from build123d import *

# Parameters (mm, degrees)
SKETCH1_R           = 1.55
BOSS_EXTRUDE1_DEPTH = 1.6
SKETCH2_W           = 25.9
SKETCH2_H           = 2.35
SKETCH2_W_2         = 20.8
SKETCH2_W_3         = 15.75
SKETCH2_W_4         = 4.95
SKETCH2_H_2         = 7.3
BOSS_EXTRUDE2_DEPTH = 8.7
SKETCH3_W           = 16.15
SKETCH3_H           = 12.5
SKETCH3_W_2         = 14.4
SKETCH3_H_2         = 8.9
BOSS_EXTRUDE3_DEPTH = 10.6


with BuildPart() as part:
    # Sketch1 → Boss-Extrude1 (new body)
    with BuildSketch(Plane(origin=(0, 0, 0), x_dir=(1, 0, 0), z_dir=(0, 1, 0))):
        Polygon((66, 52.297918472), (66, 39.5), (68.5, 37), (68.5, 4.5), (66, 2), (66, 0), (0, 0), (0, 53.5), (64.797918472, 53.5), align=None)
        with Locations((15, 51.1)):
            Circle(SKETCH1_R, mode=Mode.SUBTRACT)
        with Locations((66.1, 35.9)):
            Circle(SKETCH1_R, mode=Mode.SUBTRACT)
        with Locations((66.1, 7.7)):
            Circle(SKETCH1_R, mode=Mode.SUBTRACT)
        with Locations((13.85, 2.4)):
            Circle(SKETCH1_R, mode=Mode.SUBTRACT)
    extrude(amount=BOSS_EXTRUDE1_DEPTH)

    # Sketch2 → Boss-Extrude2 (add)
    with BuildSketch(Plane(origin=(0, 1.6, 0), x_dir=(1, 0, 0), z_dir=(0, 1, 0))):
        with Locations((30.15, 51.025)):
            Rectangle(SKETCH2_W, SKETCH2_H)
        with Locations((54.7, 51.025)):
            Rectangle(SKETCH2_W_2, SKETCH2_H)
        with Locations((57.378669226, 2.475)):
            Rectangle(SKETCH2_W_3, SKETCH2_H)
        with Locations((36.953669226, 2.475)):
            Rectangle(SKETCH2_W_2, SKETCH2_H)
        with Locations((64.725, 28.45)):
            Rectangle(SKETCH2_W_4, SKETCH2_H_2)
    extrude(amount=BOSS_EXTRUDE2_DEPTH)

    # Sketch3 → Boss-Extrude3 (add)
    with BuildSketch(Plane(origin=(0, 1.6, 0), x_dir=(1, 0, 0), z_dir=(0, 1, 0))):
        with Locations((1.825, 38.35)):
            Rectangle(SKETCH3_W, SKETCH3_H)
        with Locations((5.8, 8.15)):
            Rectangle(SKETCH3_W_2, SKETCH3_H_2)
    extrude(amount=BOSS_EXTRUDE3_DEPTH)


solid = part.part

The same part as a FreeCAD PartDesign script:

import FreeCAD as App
import Part
import Sketcher
from FreeCAD import Vector

doc = App.newDocument("Part")
body = doc.addObject("PartDesign::Body", "Body")

# Sketch on XZ plane
sketch1 = doc.addObject("Sketcher::SketchObject", "Sketch")
body.addObject(sketch1)
sketch1.AttachmentSupport = (doc.XZ_Plane, [""])
sketch1.MapMode = "FlatFace"
sketch1.addGeometry(Part.LineSegment(Vector(66, -39.5, 0), Vector(66, -52.3, 0)), False)
sketch1.addGeometry(Part.LineSegment(Vector(66, -52.3, 0), Vector(64.8, -53.5, 0)), False)
sketch1.addGeometry(Part.LineSegment(Vector(64.8, -53.5, 0), Vector(0, -53.5, 0)), False)
sketch1.addGeometry(Part.LineSegment(Vector(0, -53.5, 0), Vector(0, 0, 0)), False)
sketch1.addGeometry(Part.LineSegment(Vector(0, 0, 0), Vector(66, 0, 0)), False)
sketch1.addGeometry(Part.LineSegment(Vector(66, 0, 0), Vector(66, -2, 0)), False)
sketch1.addGeometry(Part.LineSegment(Vector(66, -2, 0), Vector(68.5, -4.5, 0)), False)
sketch1.addGeometry(Part.LineSegment(Vector(68.5, -4.5, 0), Vector(68.5, -37, 0)), False)
sketch1.addGeometry(Part.LineSegment(Vector(68.5, -37, 0), Vector(66, -39.5, 0)), False)
sketch1.addGeometry(Part.Circle(Vector(66.1, -7.7, 0), Vector(0, 0, 1), 1.6), False)
sketch1.addGeometry(Part.Circle(Vector(13.8, -2.4, 0), Vector(0, 0, 1), 1.6), False)
sketch1.addGeometry(Part.Circle(Vector(66.1, -35.9, 0), Vector(0, 0, 1), 1.6), False)
sketch1.addGeometry(Part.Circle(Vector(15, -51.1, 0), Vector(0, 0, 1), 1.6), False)
sketch1.addConstraint(Sketcher.Constraint("Coincident", 0, 2, 1, 1))
sketch1.addConstraint(Sketcher.Constraint("Coincident", 1, 2, 2, 1))
sketch1.addConstraint(Sketcher.Constraint("Coincident", 2, 2, 3, 1))
sketch1.addConstraint(Sketcher.Constraint("Coincident", 3, 2, 4, 1))
sketch1.addConstraint(Sketcher.Constraint("Coincident", 4, 2, 5, 1))
sketch1.addConstraint(Sketcher.Constraint("Coincident", 5, 2, 6, 1))
sketch1.addConstraint(Sketcher.Constraint("Coincident", 6, 2, 7, 1))
sketch1.addConstraint(Sketcher.Constraint("Coincident", 7, 2, 8, 1))
sketch1.addConstraint(Sketcher.Constraint("Coincident", 8, 2, 0, 1))
sketch1.addConstraint(Sketcher.Constraint("Vertical", 0))
sketch1.addConstraint(Sketcher.Constraint("Horizontal", 2))
sketch1.addConstraint(Sketcher.Constraint("Vertical", 3))
sketch1.addConstraint(Sketcher.Constraint("Horizontal", 4))
sketch1.addConstraint(Sketcher.Constraint("Vertical", 5))
sketch1.addConstraint(Sketcher.Constraint("Vertical", 7))
sketch1.addConstraint(Sketcher.Constraint("Coincident", 3, 2, -1, 1))
sketch1.addConstraint(Sketcher.Constraint("Equal", 9, 10))
sketch1.addConstraint(Sketcher.Constraint("Equal", 10, 11))
sketch1.addConstraint(Sketcher.Constraint("Equal", 11, 12))
sketch1.addConstraint(Sketcher.Constraint("Perpendicular", 1, 6))
sketch1.addConstraint(Sketcher.Constraint("Perpendicular", 6, 8))
sketch1.addConstraint(Sketcher.Constraint("Vertical", 9, 3, 11, 3))
sketch1.addConstraint(Sketcher.Constraint("Vertical", 0, 2, 4, 2))
sketch1.addConstraint(Sketcher.Constraint("Equal", 6, 8))
sketch1.addConstraint(Sketcher.Constraint("Diameter", 9, 3.1))
sketch1.addConstraint(Sketcher.Constraint("DistanceX", 4, 1, 4, 2, 66.0))
sketch1.addConstraint(Sketcher.Constraint("DistanceY", 5, 2, 5, 1, 2.0))
sketch1.addConstraint(Sketcher.Constraint("DistanceY", 3, 1, 3, 2, 53.5))
sketch1.addConstraint(Sketcher.Constraint("DistanceY", 7, 2, 7, 1, 32.5))
sketch1.addConstraint(Sketcher.Constraint("DistanceX", -1, 1, 12, 3, 15.0))
sketch1.addConstraint(Sketcher.Constraint("DistanceY", 7, 2, -1, 1, 37.0))
sketch1.addConstraint(Sketcher.Constraint("Distance", 1, 1.7))
sketch1.addConstraint(Sketcher.Constraint("DistanceX", -1, 1, 9, 3, 66.1))
sketch1.addConstraint(Sketcher.Constraint("DistanceY", 9, 3, -1, 1, 7.7))
sketch1.addConstraint(Sketcher.Constraint("DistanceY", 10, 3, -1, 1, 2.4))
sketch1.addConstraint(Sketcher.Constraint("DistanceY", 11, 3, -1, 1, 35.9))
sketch1.addConstraint(Sketcher.Constraint("DistanceY", 12, 3, -1, 1, 51.1))
sketch1.addConstraint(Sketcher.Constraint("DistanceX", -1, 1, 10, 3, 13.85))
pad1 = doc.addObject("PartDesign::Pad", "Pad")
body.addObject(pad1)
pad1.Profile = sketch1
pad1.Length = 1.6
pad1.Reversed = True

# Sketch on XZ plane
sketch2 = doc.addObject("Sketcher::SketchObject", "Sketch001")
body.addObject(sketch2)
sketch2.AttachmentSupport = (doc.XZ_Plane, [""])
sketch2.MapMode = "FlatFace"
sketch2.AttachmentOffset = App.Placement(Vector(0, 0, -1.6), App.Rotation())
sketch2.addGeometry(Part.LineSegment(Vector(17.2, -52.2, 0), Vector(17.2, -49.9, 0)), False)
sketch2.addGeometry(Part.LineSegment(Vector(17.2, -49.9, 0), Vector(43.1, -49.9, 0)), False)
sketch2.addGeometry(Part.LineSegment(Vector(43.1, -49.9, 0), Vector(43.1, -52.2, 0)), False)
sketch2.addGeometry(Part.LineSegment(Vector(43.1, -52.2, 0), Vector(17.2, -52.2, 0)), False)
sketch2.addGeometry(Part.LineSegment(Vector(44.3, -52.2, 0), Vector(44.3, -49.9, 0)), False)
sketch2.addGeometry(Part.LineSegment(Vector(44.3, -49.9, 0), Vector(65.1, -49.9, 0)), False)
sketch2.addGeometry(Part.LineSegment(Vector(65.1, -49.9, 0), Vector(65.1, -52.2, 0)), False)
sketch2.addGeometry(Part.LineSegment(Vector(65.1, -52.2, 0), Vector(44.3, -52.2, 0)), False)
sketch2.addGeometry(Part.LineSegment(Vector(49.5, -3.6, 0), Vector(49.5, -1.3, 0)), False)
sketch2.addGeometry(Part.LineSegment(Vector(49.5, -1.3, 0), Vector(65.3, -1.3, 0)), False)
sketch2.addGeometry(Part.LineSegment(Vector(65.3, -1.3, 0), Vector(65.3, -3.6, 0)), False)
sketch2.addGeometry(Part.LineSegment(Vector(65.3, -3.6, 0), Vector(49.5, -3.6, 0)), False)
sketch2.addGeometry(Part.LineSegment(Vector(26.6, -3.6, 0), Vector(26.6, -1.3, 0)), False)
sketch2.addGeometry(Part.LineSegment(Vector(26.6, -1.3, 0), Vector(47.4, -1.3, 0)), False)
sketch2.addGeometry(Part.LineSegment(Vector(47.4, -1.3, 0), Vector(47.4, -3.6, 0)), False)
sketch2.addGeometry(Part.LineSegment(Vector(47.4, -3.6, 0), Vector(26.6, -3.6, 0)), False)
sketch2.addGeometry(Part.LineSegment(Vector(62.2, -32.1, 0), Vector(62.2, -24.8, 0)), False)
sketch2.addGeometry(Part.LineSegment(Vector(62.2, -24.8, 0), Vector(67.2, -24.8, 0)), False)
sketch2.addGeometry(Part.LineSegment(Vector(67.2, -24.8, 0), Vector(67.2, -32.1, 0)), False)
sketch2.addGeometry(Part.LineSegment(Vector(67.2, -32.1, 0), Vector(62.2, -32.1, 0)), False)
sketch2.addConstraint(Sketcher.Constraint("Coincident", 0, 2, 1, 1))
sketch2.addConstraint(Sketcher.Constraint("Coincident", 1, 2, 2, 1))
sketch2.addConstraint(Sketcher.Constraint("Coincident", 2, 2, 3, 1))
sketch2.addConstraint(Sketcher.Constraint("Coincident", 3, 2, 0, 1))
sketch2.addConstraint(Sketcher.Constraint("Coincident", 4, 2, 5, 1))
sketch2.addConstraint(Sketcher.Constraint("Coincident", 5, 2, 6, 1))
sketch2.addConstraint(Sketcher.Constraint("Coincident", 6, 2, 7, 1))
sketch2.addConstraint(Sketcher.Constraint("Coincident", 7, 2, 4, 1))
sketch2.addConstraint(Sketcher.Constraint("Coincident", 8, 2, 9, 1))
sketch2.addConstraint(Sketcher.Constraint("Coincident", 9, 2, 10, 1))
sketch2.addConstraint(Sketcher.Constraint("Coincident", 10, 2, 11, 1))
sketch2.addConstraint(Sketcher.Constraint("Coincident", 11, 2, 8, 1))
sketch2.addConstraint(Sketcher.Constraint("Coincident", 12, 2, 13, 1))
sketch2.addConstraint(Sketcher.Constraint("Coincident", 13, 2, 14, 1))
sketch2.addConstraint(Sketcher.Constraint("Coincident", 14, 2, 15, 1))
sketch2.addConstraint(Sketcher.Constraint("Coincident", 15, 2, 12, 1))
sketch2.addConstraint(Sketcher.Constraint("Coincident", 16, 2, 17, 1))
sketch2.addConstraint(Sketcher.Constraint("Coincident", 17, 2, 18, 1))
sketch2.addConstraint(Sketcher.Constraint("Coincident", 18, 2, 19, 1))
sketch2.addConstraint(Sketcher.Constraint("Coincident", 19, 2, 16, 1))
sketch2.addConstraint(Sketcher.Constraint("Vertical", 0))
sketch2.addConstraint(Sketcher.Constraint("Horizontal", 1))
sketch2.addConstraint(Sketcher.Constraint("Vertical", 2))
sketch2.addConstraint(Sketcher.Constraint("Horizontal", 3))
sketch2.addConstraint(Sketcher.Constraint("Vertical", 4))
sketch2.addConstraint(Sketcher.Constraint("Horizontal", 5))
sketch2.addConstraint(Sketcher.Constraint("Vertical", 6))
sketch2.addConstraint(Sketcher.Constraint("Horizontal", 7))
sketch2.addConstraint(Sketcher.Constraint("Vertical", 8))
sketch2.addConstraint(Sketcher.Constraint("Horizontal", 9))
sketch2.addConstraint(Sketcher.Constraint("Vertical", 10))
sketch2.addConstraint(Sketcher.Constraint("Horizontal", 11))
sketch2.addConstraint(Sketcher.Constraint("Vertical", 12))
sketch2.addConstraint(Sketcher.Constraint("Horizontal", 13))
sketch2.addConstraint(Sketcher.Constraint("Vertical", 14))
sketch2.addConstraint(Sketcher.Constraint("Horizontal", 15))
sketch2.addConstraint(Sketcher.Constraint("Vertical", 16))
sketch2.addConstraint(Sketcher.Constraint("Horizontal", 17))
sketch2.addConstraint(Sketcher.Constraint("Vertical", 18))
sketch2.addConstraint(Sketcher.Constraint("Horizontal", 19))
sketch2.addConstraint(Sketcher.Constraint("Horizontal", 1, 2, 4, 2))
sketch2.addConstraint(Sketcher.Constraint("Horizontal", 3, 2, 6, 2))
sketch2.addConstraint(Sketcher.Constraint("Horizontal", 9, 2, 12, 2))
sketch2.addConstraint(Sketcher.Constraint("Horizontal", 11, 2, 14, 2))
sketch2.addConstraint(Sketcher.Constraint("Equal", 7, 13))
sketch2.addConstraint(Sketcher.Constraint("Equal", 6, 8))
sketch2.addConstraint(Sketcher.Constraint("DistanceX", 1, 1, 1, 2, 25.9))
sketch2.addConstraint(Sketcher.Constraint("DistanceX", 5, 1, 5, 2, 20.8))
sketch2.addConstraint(Sketcher.Constraint("DistanceY", 16, 1, 16, 2, 7.3))
sketch2.addConstraint(Sketcher.Constraint("DistanceX", 1, 2, 5, 2, 22.0))
sketch2.addConstraint(Sketcher.Constraint("DistanceX", 9, 1, 9, 2, 15.75))
sketch2.addConstraint(Sketcher.Constraint("DistanceX", 17, 1, 17, 2, 4.95))
sketch2.addConstraint(Sketcher.Constraint("DistanceY", 0, 1, 0, 2, 2.35))
sketch2.addConstraint(Sketcher.Constraint("DistanceX", -1, 1, 0, 2, 17.2))
sketch2.addConstraint(Sketcher.Constraint("DistanceY", 2, 2, -1, 1, 52.2))
sketch2.addConstraint(Sketcher.Constraint("DistanceY", 8, 2, -1, 1, 1.3))
sketch2.addConstraint(Sketcher.Constraint("DistanceY", 16, 2, -1, 1, 24.8))
sketch2.addConstraint(Sketcher.Constraint("DistanceX", -1, 1, 17, 2, 67.2))
sketch2.addConstraint(Sketcher.Constraint("DistanceX", 12, 2, 9, 2, 38.7))
sketch2.addConstraint(Sketcher.Constraint("DistanceX", -1, 1, 8, 2, 49.503669))
pad2 = doc.addObject("PartDesign::Pad", "Pad001")
body.addObject(pad2)
pad2.Profile = sketch2
pad2.Length = 8.7
pad2.Reversed = True

# Sketch on XZ plane
sketch3 = doc.addObject("Sketcher::SketchObject", "Sketch002")
body.addObject(sketch3)
sketch3.AttachmentSupport = (doc.XZ_Plane, [""])
sketch3.MapMode = "FlatFace"
sketch3.AttachmentOffset = App.Placement(Vector(0, 0, -1.6), App.Rotation())
sketch3.addGeometry(Part.LineSegment(Vector(-6, -45, 0), Vector(-6, -32, 0)), False)
sketch3.addGeometry(Part.LineSegment(Vector(-6, -32, 0), Vector(10, -32, 0)), False)
sketch3.addGeometry(Part.LineSegment(Vector(10, -32, 0), Vector(10, -45, 0)), False)
sketch3.addGeometry(Part.LineSegment(Vector(10, -45, 0), Vector(-6, -45, 0)), False)
sketch3.addGeometry(Part.LineSegment(Vector(-1, -13, 0), Vector(-1, -4, 0)), False)
sketch3.addGeometry(Part.LineSegment(Vector(-1, -4, 0), Vector(13, -4, 0)), False)
sketch3.addGeometry(Part.LineSegment(Vector(13, -4, 0), Vector(13, -13, 0)), False)
sketch3.addGeometry(Part.LineSegment(Vector(13, -13, 0), Vector(-1, -13, 0)), False)
sketch3.addConstraint(Sketcher.Constraint("Coincident", 0, 2, 1, 1))
sketch3.addConstraint(Sketcher.Constraint("Coincident", 1, 2, 2, 1))
sketch3.addConstraint(Sketcher.Constraint("Coincident", 2, 2, 3, 1))
sketch3.addConstraint(Sketcher.Constraint("Coincident", 3, 2, 0, 1))
sketch3.addConstraint(Sketcher.Constraint("Coincident", 4, 2, 5, 1))
sketch3.addConstraint(Sketcher.Constraint("Coincident", 5, 2, 6, 1))
sketch3.addConstraint(Sketcher.Constraint("Coincident", 6, 2, 7, 1))
sketch3.addConstraint(Sketcher.Constraint("Coincident", 7, 2, 4, 1))
sketch3.addConstraint(Sketcher.Constraint("Vertical", 0))
sketch3.addConstraint(Sketcher.Constraint("Horizontal", 1))
sketch3.addConstraint(Sketcher.Constraint("Vertical", 2))
sketch3.addConstraint(Sketcher.Constraint("Horizontal", 3))
sketch3.addConstraint(Sketcher.Constraint("Vertical", 4))
sketch3.addConstraint(Sketcher.Constraint("Horizontal", 5))
sketch3.addConstraint(Sketcher.Constraint("Vertical", 6))
sketch3.addConstraint(Sketcher.Constraint("Horizontal", 7))
sketch3.addConstraint(Sketcher.Constraint("DistanceX", 5, 1, 5, 2, 14.4))
sketch3.addConstraint(Sketcher.Constraint("DistanceY", 0, 1, 0, 2, 12.5))
sketch3.addConstraint(Sketcher.Constraint("DistanceY", 4, 1, 4, 2, 8.9))
sketch3.addConstraint(Sketcher.Constraint("DistanceX", -1, 1, 5, 2, 13.0))
sketch3.addConstraint(Sketcher.Constraint("DistanceY", 2, 2, 6, 2, 32.0))
sketch3.addConstraint(Sketcher.Constraint("DistanceX", 1, 1, 1, 2, 16.15))
sketch3.addConstraint(Sketcher.Constraint("DistanceY", 0, 2, -1, 1, 32.1))
sketch3.addConstraint(Sketcher.Constraint("DistanceX", -1, 1, 1, 2, 9.9))
pad3 = doc.addObject("PartDesign::Pad", "Pad002")
body.addObject(pad3)
pad3.Profile = sketch3
pad3.Length = 10.6
pad3.Reversed = True

doc.recompute()
